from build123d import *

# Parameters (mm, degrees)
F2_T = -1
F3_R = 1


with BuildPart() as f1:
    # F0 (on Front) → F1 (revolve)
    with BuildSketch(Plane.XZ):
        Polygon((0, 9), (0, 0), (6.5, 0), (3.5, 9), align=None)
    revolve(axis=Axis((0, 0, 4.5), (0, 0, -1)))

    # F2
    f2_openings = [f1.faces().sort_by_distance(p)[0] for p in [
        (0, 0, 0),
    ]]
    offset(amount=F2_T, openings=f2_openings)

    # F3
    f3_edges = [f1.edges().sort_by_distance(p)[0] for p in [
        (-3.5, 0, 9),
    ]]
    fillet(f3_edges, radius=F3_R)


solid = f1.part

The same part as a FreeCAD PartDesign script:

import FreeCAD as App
import Part
import Sketcher

V = App.Vector


def edges_at(feature, points):
    """Names of the edges that pass closest to the given points."""
    edges = feature.Shape.Edges
    near = lambda p: min(range(len(edges)), key=lambda i: edges[i].distToShape(Part.Vertex(*p))[0])
    return sorted({f"Edge{near(p) + 1}" for p in points})


def faces_at(feature, points):
    """Names of the faces that lie closest to the given points."""
    faces = feature.Shape.Faces
    near = lambda p: min(range(len(faces)), key=lambda i: faces[i].distToShape(Part.Vertex(*p))[0])
    return sorted({f"Face{near(p) + 1}" for p in points})


def add_polygon(sketch, points):
    """Adds a closed chain of lines whose ends are joined by coincident constraints."""
    first, n = sketch.GeometryCount, len(points)
    for a, b in zip(points, points[1:] + points[:1]):
        sketch.addGeometry(Part.LineSegment(App.Vector(*a, 0), App.Vector(*b, 0)), False)
    for i in range(n):
        sketch.addConstraint(Sketcher.Constraint("Coincident", first + i, 2, first + (i + 1) % n, 1))

doc = App.newDocument("Part")
params = doc.addObject("Spreadsheet::Sheet", "Params")
for row, (alias, value) in enumerate([
    ("sketch1_height", "9 mm"),
    ("sketch1_width", "6.5 mm"),
    ("sketch1_width2", "3.5 mm"),
    ("revolution_angle", "360 deg"),
    ("thickness_wall", "1 mm"),
    ("fillet_radius", "1 mm"),
], start=1):
    params.set(f"A{row}", alias)
    params.set(f"B{row}", "=" + value)
    params.setAlias(f"B{row}", alias)

body = doc.addObject("PartDesign::Body", "Body")

# Sketch on XZ plane
sketch1 = body.newObject("Sketcher::SketchObject", "Sketch")
sketch1.AttachmentSupport = (doc.getObject("XZ_Plane"), [""])
sketch1.MapMode = "FlatFace"
add_polygon(sketch1, [(0, 9), (0, 0), (6.5, 0), (3.5, 9)])  # lines 0-3
sketch1.addConstraint([
    Sketcher.Constraint("Vertical", 0),
    Sketcher.Constraint("Horizontal", 1),
    Sketcher.Constraint("Horizontal", 3),
    Sketcher.Constraint("Coincident", 0, 2, -1, 1),
    Sketcher.Constraint("DistanceY", 0, 2, 0, 1, 9.0),
    Sketcher.Constraint("DistanceX", 1, 1, 1, 2, 6.5),
    Sketcher.Constraint("DistanceX", 3, 2, 3, 1, 3.5),
])
sketch1.setExpression("Constraints[8]", "Params.sketch1_height")
sketch1.setExpression("Constraints[9]", "Params.sketch1_width")
sketch1.setExpression("Constraints[10]", "Params.sketch1_width2")
revolution = body.newObject("PartDesign::Revolution", "Revolution")
revolution.Profile = sketch1
revolution.ReferenceAxis = (sketch1, ["V_Axis"])
revolution.setExpression("Angle", "Params.revolution_angle")
doc.recompute()

thickness = body.newObject("PartDesign::Thickness", "Thickness")
thickness.Base = (revolution, faces_at(revolution, [(0, 0, 0)]))
thickness.setExpression("Value", "Params.thickness_wall")
thickness.Reversed = True
thickness.Join = "Arc"
doc.recompute()

fillet = body.newObject("PartDesign::Fillet", "Fillet")
fillet.Base = (thickness, edges_at(thickness, [(-3.5, 0, 9)]))
fillet.setExpression("Radius", "Params.fillet_radius")

doc.recompute()
